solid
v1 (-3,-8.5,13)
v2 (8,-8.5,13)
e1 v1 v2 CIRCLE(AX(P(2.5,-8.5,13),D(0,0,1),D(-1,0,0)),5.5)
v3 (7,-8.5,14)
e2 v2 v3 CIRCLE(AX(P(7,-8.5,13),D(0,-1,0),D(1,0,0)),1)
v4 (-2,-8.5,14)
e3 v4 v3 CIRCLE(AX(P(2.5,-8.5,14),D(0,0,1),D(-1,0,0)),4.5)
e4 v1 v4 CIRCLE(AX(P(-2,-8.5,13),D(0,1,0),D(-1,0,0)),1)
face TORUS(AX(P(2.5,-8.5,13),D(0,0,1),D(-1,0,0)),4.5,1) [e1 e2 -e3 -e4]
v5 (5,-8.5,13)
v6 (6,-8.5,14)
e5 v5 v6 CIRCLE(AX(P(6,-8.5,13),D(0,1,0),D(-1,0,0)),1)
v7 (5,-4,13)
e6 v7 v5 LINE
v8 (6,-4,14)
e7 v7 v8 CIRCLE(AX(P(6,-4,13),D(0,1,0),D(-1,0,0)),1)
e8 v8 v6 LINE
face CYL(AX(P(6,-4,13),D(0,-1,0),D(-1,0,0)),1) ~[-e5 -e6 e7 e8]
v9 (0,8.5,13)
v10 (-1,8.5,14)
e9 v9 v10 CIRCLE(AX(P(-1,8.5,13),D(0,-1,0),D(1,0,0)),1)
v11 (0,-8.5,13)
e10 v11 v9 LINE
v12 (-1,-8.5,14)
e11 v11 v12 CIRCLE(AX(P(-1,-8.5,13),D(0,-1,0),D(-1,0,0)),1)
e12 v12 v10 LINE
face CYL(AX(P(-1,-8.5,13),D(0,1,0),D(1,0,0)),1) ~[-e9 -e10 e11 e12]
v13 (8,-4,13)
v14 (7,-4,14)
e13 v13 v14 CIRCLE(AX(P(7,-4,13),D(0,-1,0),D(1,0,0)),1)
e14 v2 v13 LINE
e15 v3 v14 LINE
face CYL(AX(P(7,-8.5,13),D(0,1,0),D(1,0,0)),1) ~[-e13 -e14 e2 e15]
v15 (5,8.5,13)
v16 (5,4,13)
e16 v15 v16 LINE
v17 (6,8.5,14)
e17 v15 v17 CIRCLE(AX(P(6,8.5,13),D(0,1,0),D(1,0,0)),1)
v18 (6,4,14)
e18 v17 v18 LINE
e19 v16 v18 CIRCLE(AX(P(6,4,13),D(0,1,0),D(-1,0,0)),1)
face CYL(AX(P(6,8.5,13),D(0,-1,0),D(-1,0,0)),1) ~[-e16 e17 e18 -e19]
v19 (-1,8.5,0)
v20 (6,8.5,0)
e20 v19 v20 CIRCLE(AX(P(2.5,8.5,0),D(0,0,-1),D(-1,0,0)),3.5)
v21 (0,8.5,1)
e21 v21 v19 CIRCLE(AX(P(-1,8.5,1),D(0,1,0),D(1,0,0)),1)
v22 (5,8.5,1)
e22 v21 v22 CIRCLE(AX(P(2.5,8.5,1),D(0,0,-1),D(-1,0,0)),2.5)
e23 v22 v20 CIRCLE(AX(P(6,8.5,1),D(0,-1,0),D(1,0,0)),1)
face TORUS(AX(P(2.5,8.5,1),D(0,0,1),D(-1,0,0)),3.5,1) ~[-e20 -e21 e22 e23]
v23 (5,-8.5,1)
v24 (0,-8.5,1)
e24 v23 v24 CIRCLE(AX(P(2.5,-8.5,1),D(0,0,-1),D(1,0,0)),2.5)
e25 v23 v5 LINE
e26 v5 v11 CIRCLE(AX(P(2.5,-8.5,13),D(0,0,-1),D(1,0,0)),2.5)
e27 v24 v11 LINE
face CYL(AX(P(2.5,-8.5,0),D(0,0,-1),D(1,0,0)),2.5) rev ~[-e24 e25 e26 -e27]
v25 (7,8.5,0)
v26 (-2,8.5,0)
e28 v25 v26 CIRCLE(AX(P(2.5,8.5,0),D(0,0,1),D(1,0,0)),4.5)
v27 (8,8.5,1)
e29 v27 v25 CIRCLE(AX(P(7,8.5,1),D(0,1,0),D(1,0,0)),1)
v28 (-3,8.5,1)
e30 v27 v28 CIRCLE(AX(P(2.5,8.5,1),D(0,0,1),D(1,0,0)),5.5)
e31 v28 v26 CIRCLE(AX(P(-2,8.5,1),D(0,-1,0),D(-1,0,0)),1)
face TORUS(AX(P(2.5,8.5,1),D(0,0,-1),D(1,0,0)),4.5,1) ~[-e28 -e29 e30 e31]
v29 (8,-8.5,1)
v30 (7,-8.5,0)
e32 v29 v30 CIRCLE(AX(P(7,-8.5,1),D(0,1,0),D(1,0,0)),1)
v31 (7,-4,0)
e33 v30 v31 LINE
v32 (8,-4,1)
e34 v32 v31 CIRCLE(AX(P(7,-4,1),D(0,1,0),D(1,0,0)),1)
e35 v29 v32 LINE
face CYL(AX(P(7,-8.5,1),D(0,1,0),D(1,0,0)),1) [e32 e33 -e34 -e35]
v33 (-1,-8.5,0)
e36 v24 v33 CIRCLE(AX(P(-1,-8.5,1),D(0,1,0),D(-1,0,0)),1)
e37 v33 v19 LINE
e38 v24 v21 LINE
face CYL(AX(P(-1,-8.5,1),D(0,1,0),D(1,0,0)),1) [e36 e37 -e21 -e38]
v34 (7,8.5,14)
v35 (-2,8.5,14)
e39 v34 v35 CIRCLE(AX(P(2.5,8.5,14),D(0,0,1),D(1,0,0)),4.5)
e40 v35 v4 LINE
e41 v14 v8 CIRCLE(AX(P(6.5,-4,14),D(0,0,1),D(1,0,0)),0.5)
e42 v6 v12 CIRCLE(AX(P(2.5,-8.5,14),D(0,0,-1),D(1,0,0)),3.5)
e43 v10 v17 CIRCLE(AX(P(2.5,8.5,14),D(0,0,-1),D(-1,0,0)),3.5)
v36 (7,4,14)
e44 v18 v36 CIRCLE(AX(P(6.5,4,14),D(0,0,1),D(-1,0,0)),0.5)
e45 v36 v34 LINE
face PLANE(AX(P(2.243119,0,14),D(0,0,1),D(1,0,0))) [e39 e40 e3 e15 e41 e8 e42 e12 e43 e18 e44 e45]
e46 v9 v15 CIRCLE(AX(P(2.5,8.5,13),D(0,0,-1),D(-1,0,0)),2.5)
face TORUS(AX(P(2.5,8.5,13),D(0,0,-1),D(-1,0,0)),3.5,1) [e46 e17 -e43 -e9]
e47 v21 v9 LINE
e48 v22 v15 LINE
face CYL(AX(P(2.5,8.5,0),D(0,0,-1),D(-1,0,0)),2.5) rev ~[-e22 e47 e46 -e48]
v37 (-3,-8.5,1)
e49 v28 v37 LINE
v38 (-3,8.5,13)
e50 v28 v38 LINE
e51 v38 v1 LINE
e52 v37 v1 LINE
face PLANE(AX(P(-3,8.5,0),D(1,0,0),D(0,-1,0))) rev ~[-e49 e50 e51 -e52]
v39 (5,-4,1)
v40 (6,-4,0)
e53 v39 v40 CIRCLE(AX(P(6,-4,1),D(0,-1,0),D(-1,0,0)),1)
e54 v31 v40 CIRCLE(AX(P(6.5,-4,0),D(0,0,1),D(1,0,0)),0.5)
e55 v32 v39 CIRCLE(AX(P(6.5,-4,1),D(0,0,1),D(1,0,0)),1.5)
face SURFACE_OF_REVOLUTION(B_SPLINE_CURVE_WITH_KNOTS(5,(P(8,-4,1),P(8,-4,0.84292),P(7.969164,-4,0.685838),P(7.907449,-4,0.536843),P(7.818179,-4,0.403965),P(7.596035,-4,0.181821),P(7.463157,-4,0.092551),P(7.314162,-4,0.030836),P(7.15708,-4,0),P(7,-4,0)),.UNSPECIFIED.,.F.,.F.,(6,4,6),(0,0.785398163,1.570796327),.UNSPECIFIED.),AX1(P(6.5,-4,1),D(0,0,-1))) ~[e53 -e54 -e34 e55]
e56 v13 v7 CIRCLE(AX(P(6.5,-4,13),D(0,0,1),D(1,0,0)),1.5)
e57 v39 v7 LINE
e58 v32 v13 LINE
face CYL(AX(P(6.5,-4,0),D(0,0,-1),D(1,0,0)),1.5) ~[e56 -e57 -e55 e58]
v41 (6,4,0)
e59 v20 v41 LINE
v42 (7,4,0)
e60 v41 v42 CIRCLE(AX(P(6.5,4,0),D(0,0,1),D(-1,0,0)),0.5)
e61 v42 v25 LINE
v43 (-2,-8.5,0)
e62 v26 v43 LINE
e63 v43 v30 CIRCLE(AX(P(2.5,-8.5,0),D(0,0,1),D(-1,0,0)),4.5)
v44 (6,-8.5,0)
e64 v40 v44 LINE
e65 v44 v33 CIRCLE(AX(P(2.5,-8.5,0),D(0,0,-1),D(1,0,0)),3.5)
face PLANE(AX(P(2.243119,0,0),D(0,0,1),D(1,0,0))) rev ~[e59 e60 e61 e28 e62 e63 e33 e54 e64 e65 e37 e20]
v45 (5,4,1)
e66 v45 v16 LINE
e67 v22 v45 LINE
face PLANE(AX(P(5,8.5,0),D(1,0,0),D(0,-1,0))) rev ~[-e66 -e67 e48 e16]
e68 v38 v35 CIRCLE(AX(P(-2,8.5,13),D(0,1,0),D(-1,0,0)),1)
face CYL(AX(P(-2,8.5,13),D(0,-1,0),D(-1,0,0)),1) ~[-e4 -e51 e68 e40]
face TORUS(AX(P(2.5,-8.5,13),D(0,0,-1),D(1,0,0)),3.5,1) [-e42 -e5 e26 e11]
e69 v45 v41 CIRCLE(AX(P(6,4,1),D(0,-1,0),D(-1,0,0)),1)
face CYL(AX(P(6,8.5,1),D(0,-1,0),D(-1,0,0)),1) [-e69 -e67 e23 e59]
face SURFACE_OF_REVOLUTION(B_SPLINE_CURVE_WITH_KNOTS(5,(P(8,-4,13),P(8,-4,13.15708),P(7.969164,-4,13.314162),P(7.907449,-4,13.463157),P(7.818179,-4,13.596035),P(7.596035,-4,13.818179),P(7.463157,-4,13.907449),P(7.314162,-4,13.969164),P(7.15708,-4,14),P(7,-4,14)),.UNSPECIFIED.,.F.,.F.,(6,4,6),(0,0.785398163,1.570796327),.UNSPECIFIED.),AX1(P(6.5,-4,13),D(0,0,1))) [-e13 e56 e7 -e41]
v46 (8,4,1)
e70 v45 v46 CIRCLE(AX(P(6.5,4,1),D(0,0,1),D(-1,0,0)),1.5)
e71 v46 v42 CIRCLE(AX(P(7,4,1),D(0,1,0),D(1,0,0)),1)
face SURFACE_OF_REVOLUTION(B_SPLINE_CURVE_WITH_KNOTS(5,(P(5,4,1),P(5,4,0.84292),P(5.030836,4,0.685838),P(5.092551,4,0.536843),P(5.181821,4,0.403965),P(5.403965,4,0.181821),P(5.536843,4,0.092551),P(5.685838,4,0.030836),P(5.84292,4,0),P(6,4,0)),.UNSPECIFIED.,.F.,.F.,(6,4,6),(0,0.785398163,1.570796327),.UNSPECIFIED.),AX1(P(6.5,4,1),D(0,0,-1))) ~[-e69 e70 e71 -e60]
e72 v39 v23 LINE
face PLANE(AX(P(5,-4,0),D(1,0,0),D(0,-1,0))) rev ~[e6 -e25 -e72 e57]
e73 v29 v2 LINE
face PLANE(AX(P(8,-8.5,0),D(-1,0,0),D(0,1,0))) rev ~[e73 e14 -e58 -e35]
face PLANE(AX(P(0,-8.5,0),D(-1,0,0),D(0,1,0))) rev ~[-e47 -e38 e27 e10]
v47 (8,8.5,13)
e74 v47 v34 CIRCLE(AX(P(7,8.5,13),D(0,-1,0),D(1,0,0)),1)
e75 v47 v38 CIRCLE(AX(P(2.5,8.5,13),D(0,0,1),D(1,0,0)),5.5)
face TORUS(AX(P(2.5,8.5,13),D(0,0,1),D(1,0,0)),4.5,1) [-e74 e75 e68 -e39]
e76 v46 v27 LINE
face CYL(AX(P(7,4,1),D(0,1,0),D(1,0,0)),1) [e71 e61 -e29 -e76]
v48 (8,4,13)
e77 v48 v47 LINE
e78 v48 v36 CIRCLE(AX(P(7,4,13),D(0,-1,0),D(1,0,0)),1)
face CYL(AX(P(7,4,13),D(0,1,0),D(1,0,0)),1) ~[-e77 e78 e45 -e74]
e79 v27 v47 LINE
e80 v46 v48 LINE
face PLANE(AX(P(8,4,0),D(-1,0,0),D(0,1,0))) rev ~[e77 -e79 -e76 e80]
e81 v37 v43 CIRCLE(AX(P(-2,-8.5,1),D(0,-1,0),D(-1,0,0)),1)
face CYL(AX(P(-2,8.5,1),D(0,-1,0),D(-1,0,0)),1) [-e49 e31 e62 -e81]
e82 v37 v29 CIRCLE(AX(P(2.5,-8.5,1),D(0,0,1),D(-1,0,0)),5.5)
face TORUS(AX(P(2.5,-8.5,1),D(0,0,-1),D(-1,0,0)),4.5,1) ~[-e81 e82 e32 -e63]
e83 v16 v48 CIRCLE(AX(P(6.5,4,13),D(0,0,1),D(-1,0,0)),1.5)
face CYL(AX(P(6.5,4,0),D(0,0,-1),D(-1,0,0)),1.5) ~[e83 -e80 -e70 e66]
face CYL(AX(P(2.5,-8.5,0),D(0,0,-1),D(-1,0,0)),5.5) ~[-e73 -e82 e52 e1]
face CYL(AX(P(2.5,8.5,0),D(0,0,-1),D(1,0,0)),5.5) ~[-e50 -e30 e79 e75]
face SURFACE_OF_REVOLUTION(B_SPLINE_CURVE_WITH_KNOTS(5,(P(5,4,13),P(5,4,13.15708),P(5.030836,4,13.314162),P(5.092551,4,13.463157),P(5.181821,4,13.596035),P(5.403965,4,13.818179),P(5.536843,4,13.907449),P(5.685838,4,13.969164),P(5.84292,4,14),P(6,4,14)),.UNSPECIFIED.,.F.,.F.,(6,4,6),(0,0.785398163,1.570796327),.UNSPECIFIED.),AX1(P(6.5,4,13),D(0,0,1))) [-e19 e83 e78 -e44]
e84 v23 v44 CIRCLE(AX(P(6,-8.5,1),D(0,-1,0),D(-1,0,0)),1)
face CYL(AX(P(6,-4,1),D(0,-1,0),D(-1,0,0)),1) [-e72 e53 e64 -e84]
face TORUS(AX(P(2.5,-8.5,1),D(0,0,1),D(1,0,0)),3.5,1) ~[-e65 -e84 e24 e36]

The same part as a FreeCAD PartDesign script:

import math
import FreeCAD as App
import Part
import Sketcher

V = App.Vector
Q = App.Units.Quantity


def edges_at(feature, points):
    """Names of the edges that pass closest to the given points."""
    edges = feature.Shape.Edges
    near = lambda p: min(range(len(edges)), key=lambda i: edges[i].distToShape(Part.Vertex(*p))[0])
    return sorted({f"Edge{near(p) + 1}" for p in points})

doc = App.newDocument("Part")
body = doc.addObject("PartDesign::Body", "Body")

# Sketch on XY plane
sketch1 = doc.addObject("Sketcher::SketchObject", "Sketch")
body.addObject(sketch1)
sketch1.AttachmentSupport = (doc.XY_Plane, [""])
sketch1.MapMode = "FlatFace"
sketch1.addGeometry(Part.LineSegment(V(0, -8.5, 0), V(0, 8.5, 0)), False)
sketch1.addGeometry(Part.ArcOfCircle(Part.Circle(V(2.5, 8.5, 0), V(0, 0, 1), 2.5), math.radians(0), math.radians(180)), False)
sketch1.addGeometry(Part.LineSegment(V(5, 8.5, 0), V(5, 4, 0)), False)
sketch1.addGeometry(Part.ArcOfCircle(Part.Circle(V(6.5, 4, 0), V(0, 0, 1), 1.5), math.radians(180), math.radians(360)), False)
sketch1.addGeometry(Part.LineSegment(V(8, 4, 0), V(8, 8.5, 0)), False)
sketch1.addGeometry(Part.ArcOfCircle(Part.Circle(V(2.5, 8.5, 0), V(0, 0, 1), 5.5), math.radians(0), math.radians(180)), False)
sketch1.addGeometry(Part.LineSegment(V(-3, 8.5, 0), V(-3, -8.5, 0)), False)
sketch1.addGeometry(Part.ArcOfCircle(Part.Circle(V(2.5, -8.5, 0), V(0, 0, 1), 5.5), math.radians(180), math.radians(360)), False)
sketch1.addGeometry(Part.LineSegment(V(8, -8.5, 0), V(8, -4, 0)), False)
sketch1.addGeometry(Part.ArcOfCircle(Part.Circle(V(6.5, -4, 0), V(0, 0, 1), 1.5), math.radians(0), math.radians(180)), False)
sketch1.addGeometry(Part.LineSegment(V(5, -4, 0), V(5, -8.5, 0)), False)
sketch1.addGeometry(Part.ArcOfCircle(Part.Circle(V(2.5, -8.5, 0), V(0, 0, 1), 2.5), math.radians(180), math.radians(360)), False)
sketch1.addConstraint(Sketcher.Constraint("Tangent", 0, 2, 1, 2))
sketch1.addConstraint(Sketcher.Constraint("Tangent", 1, 1, 2, 1))
sketch1.addConstraint(Sketcher.Constraint("Tangent", 2, 2, 3, 1))
sketch1.addConstraint(Sketcher.Constraint("Tangent", 3, 2, 4, 1))
sketch1.addConstraint(Sketcher.Constraint("Tangent", 4, 2, 5, 1))
sketch1.addConstraint(Sketcher.Constraint("Tangent", 5, 2, 6, 1))
sketch1.addConstraint(Sketcher.Constraint("Tangent", 6, 2, 7, 1))
sketch1.addConstraint(Sketcher.Constraint("Tangent", 7, 2, 8, 1))
sketch1.addConstraint(Sketcher.Constraint("Tangent", 8, 2, 9, 1))
sketch1.addConstraint(Sketcher.Constraint("Tangent", 9, 2, 10, 1))
sketch1.addConstraint(Sketcher.Constraint("Tangent", 10, 2, 11, 2))
sketch1.addConstraint(Sketcher.Constraint("Tangent", 11, 1, 0, 1))
sketch1.addConstraint(Sketcher.Constraint("Vertical", 0))
sketch1.addConstraint(Sketcher.Constraint("Vertical", 2))
sketch1.addConstraint(Sketcher.Constraint("Vertical", 4))
sketch1.addConstraint(Sketcher.Constraint("Vertical", 6))
sketch1.addConstraint(Sketcher.Constraint("Vertical", 8))
sketch1.addConstraint(Sketcher.Constraint("Vertical", 10))
sketch1.addConstraint(Sketcher.Constraint("Coincident", 5, 3, 1, 3))
sketch1.addConstraint(Sketcher.Constraint("Coincident", 11, 3, 7, 3))
sketch1.addConstraint(Sketcher.Constraint("Equal", 5, 7))
sketch1.addConstraint(Sketcher.Constraint("Symmetric", 0, 2, 11, 1, -1, 1))
sketch1.addConstraint(Sketcher.Constraint("Equal", 4, 8))
sketch1.addConstraint(Sketcher.Constraint("Radius", 1, Q("2.5 mm")))
sketch1.addConstraint(Sketcher.Constraint("Radius", 3, Q("1.5 mm")))
sketch1.addConstraint(Sketcher.Constraint("DistanceY", 0, 1, 0, 2, Q("17 mm")))
sketch1.addConstraint(Sketcher.Constraint("DistanceY", 2, 2, 2, 1, Q("4.5 mm")))
pad1 = doc.addObject("PartDesign::Pad", "Pad")
body.addObject(pad1)
pad1.Profile = sketch1
pad1.Length = 14
doc.recompute()

fillet = doc.addObject("PartDesign::Fillet", "Fillet")
body.addObject(fillet)
fillet.Base = (pad1, edges_at(pad1, [
    (2.5, -14, 14),
    (8, -6.25, 14),
    (6.5, -2.5, 14),
    (5, -6.25, 14),
    (2.5, -11, 14),
    (0, 0, 14),
    (2.5, 11, 14),
    (5, 6.25, 14),
    (6.5, 2.5, 14),
    (8, 6.25, 14),
    (2.5, 14, 14),
    (-3, 0, 14),
    (2.5, -14, 0),
    (8, -6.25, 0),
    (6.5, -2.5, 0),
    (5, -6.25, 0),
    (2.5, -11, 0),
    (0, 0, 0),
    (2.5, 11, 0),
    (5, 6.25, 0),
    (6.5, 2.5, 0),
    (8, 6.25, 0),
    (2.5, 14, 0),
    (-3, 0, 0),
]))
fillet.Radius = 1

doc.recompute()
